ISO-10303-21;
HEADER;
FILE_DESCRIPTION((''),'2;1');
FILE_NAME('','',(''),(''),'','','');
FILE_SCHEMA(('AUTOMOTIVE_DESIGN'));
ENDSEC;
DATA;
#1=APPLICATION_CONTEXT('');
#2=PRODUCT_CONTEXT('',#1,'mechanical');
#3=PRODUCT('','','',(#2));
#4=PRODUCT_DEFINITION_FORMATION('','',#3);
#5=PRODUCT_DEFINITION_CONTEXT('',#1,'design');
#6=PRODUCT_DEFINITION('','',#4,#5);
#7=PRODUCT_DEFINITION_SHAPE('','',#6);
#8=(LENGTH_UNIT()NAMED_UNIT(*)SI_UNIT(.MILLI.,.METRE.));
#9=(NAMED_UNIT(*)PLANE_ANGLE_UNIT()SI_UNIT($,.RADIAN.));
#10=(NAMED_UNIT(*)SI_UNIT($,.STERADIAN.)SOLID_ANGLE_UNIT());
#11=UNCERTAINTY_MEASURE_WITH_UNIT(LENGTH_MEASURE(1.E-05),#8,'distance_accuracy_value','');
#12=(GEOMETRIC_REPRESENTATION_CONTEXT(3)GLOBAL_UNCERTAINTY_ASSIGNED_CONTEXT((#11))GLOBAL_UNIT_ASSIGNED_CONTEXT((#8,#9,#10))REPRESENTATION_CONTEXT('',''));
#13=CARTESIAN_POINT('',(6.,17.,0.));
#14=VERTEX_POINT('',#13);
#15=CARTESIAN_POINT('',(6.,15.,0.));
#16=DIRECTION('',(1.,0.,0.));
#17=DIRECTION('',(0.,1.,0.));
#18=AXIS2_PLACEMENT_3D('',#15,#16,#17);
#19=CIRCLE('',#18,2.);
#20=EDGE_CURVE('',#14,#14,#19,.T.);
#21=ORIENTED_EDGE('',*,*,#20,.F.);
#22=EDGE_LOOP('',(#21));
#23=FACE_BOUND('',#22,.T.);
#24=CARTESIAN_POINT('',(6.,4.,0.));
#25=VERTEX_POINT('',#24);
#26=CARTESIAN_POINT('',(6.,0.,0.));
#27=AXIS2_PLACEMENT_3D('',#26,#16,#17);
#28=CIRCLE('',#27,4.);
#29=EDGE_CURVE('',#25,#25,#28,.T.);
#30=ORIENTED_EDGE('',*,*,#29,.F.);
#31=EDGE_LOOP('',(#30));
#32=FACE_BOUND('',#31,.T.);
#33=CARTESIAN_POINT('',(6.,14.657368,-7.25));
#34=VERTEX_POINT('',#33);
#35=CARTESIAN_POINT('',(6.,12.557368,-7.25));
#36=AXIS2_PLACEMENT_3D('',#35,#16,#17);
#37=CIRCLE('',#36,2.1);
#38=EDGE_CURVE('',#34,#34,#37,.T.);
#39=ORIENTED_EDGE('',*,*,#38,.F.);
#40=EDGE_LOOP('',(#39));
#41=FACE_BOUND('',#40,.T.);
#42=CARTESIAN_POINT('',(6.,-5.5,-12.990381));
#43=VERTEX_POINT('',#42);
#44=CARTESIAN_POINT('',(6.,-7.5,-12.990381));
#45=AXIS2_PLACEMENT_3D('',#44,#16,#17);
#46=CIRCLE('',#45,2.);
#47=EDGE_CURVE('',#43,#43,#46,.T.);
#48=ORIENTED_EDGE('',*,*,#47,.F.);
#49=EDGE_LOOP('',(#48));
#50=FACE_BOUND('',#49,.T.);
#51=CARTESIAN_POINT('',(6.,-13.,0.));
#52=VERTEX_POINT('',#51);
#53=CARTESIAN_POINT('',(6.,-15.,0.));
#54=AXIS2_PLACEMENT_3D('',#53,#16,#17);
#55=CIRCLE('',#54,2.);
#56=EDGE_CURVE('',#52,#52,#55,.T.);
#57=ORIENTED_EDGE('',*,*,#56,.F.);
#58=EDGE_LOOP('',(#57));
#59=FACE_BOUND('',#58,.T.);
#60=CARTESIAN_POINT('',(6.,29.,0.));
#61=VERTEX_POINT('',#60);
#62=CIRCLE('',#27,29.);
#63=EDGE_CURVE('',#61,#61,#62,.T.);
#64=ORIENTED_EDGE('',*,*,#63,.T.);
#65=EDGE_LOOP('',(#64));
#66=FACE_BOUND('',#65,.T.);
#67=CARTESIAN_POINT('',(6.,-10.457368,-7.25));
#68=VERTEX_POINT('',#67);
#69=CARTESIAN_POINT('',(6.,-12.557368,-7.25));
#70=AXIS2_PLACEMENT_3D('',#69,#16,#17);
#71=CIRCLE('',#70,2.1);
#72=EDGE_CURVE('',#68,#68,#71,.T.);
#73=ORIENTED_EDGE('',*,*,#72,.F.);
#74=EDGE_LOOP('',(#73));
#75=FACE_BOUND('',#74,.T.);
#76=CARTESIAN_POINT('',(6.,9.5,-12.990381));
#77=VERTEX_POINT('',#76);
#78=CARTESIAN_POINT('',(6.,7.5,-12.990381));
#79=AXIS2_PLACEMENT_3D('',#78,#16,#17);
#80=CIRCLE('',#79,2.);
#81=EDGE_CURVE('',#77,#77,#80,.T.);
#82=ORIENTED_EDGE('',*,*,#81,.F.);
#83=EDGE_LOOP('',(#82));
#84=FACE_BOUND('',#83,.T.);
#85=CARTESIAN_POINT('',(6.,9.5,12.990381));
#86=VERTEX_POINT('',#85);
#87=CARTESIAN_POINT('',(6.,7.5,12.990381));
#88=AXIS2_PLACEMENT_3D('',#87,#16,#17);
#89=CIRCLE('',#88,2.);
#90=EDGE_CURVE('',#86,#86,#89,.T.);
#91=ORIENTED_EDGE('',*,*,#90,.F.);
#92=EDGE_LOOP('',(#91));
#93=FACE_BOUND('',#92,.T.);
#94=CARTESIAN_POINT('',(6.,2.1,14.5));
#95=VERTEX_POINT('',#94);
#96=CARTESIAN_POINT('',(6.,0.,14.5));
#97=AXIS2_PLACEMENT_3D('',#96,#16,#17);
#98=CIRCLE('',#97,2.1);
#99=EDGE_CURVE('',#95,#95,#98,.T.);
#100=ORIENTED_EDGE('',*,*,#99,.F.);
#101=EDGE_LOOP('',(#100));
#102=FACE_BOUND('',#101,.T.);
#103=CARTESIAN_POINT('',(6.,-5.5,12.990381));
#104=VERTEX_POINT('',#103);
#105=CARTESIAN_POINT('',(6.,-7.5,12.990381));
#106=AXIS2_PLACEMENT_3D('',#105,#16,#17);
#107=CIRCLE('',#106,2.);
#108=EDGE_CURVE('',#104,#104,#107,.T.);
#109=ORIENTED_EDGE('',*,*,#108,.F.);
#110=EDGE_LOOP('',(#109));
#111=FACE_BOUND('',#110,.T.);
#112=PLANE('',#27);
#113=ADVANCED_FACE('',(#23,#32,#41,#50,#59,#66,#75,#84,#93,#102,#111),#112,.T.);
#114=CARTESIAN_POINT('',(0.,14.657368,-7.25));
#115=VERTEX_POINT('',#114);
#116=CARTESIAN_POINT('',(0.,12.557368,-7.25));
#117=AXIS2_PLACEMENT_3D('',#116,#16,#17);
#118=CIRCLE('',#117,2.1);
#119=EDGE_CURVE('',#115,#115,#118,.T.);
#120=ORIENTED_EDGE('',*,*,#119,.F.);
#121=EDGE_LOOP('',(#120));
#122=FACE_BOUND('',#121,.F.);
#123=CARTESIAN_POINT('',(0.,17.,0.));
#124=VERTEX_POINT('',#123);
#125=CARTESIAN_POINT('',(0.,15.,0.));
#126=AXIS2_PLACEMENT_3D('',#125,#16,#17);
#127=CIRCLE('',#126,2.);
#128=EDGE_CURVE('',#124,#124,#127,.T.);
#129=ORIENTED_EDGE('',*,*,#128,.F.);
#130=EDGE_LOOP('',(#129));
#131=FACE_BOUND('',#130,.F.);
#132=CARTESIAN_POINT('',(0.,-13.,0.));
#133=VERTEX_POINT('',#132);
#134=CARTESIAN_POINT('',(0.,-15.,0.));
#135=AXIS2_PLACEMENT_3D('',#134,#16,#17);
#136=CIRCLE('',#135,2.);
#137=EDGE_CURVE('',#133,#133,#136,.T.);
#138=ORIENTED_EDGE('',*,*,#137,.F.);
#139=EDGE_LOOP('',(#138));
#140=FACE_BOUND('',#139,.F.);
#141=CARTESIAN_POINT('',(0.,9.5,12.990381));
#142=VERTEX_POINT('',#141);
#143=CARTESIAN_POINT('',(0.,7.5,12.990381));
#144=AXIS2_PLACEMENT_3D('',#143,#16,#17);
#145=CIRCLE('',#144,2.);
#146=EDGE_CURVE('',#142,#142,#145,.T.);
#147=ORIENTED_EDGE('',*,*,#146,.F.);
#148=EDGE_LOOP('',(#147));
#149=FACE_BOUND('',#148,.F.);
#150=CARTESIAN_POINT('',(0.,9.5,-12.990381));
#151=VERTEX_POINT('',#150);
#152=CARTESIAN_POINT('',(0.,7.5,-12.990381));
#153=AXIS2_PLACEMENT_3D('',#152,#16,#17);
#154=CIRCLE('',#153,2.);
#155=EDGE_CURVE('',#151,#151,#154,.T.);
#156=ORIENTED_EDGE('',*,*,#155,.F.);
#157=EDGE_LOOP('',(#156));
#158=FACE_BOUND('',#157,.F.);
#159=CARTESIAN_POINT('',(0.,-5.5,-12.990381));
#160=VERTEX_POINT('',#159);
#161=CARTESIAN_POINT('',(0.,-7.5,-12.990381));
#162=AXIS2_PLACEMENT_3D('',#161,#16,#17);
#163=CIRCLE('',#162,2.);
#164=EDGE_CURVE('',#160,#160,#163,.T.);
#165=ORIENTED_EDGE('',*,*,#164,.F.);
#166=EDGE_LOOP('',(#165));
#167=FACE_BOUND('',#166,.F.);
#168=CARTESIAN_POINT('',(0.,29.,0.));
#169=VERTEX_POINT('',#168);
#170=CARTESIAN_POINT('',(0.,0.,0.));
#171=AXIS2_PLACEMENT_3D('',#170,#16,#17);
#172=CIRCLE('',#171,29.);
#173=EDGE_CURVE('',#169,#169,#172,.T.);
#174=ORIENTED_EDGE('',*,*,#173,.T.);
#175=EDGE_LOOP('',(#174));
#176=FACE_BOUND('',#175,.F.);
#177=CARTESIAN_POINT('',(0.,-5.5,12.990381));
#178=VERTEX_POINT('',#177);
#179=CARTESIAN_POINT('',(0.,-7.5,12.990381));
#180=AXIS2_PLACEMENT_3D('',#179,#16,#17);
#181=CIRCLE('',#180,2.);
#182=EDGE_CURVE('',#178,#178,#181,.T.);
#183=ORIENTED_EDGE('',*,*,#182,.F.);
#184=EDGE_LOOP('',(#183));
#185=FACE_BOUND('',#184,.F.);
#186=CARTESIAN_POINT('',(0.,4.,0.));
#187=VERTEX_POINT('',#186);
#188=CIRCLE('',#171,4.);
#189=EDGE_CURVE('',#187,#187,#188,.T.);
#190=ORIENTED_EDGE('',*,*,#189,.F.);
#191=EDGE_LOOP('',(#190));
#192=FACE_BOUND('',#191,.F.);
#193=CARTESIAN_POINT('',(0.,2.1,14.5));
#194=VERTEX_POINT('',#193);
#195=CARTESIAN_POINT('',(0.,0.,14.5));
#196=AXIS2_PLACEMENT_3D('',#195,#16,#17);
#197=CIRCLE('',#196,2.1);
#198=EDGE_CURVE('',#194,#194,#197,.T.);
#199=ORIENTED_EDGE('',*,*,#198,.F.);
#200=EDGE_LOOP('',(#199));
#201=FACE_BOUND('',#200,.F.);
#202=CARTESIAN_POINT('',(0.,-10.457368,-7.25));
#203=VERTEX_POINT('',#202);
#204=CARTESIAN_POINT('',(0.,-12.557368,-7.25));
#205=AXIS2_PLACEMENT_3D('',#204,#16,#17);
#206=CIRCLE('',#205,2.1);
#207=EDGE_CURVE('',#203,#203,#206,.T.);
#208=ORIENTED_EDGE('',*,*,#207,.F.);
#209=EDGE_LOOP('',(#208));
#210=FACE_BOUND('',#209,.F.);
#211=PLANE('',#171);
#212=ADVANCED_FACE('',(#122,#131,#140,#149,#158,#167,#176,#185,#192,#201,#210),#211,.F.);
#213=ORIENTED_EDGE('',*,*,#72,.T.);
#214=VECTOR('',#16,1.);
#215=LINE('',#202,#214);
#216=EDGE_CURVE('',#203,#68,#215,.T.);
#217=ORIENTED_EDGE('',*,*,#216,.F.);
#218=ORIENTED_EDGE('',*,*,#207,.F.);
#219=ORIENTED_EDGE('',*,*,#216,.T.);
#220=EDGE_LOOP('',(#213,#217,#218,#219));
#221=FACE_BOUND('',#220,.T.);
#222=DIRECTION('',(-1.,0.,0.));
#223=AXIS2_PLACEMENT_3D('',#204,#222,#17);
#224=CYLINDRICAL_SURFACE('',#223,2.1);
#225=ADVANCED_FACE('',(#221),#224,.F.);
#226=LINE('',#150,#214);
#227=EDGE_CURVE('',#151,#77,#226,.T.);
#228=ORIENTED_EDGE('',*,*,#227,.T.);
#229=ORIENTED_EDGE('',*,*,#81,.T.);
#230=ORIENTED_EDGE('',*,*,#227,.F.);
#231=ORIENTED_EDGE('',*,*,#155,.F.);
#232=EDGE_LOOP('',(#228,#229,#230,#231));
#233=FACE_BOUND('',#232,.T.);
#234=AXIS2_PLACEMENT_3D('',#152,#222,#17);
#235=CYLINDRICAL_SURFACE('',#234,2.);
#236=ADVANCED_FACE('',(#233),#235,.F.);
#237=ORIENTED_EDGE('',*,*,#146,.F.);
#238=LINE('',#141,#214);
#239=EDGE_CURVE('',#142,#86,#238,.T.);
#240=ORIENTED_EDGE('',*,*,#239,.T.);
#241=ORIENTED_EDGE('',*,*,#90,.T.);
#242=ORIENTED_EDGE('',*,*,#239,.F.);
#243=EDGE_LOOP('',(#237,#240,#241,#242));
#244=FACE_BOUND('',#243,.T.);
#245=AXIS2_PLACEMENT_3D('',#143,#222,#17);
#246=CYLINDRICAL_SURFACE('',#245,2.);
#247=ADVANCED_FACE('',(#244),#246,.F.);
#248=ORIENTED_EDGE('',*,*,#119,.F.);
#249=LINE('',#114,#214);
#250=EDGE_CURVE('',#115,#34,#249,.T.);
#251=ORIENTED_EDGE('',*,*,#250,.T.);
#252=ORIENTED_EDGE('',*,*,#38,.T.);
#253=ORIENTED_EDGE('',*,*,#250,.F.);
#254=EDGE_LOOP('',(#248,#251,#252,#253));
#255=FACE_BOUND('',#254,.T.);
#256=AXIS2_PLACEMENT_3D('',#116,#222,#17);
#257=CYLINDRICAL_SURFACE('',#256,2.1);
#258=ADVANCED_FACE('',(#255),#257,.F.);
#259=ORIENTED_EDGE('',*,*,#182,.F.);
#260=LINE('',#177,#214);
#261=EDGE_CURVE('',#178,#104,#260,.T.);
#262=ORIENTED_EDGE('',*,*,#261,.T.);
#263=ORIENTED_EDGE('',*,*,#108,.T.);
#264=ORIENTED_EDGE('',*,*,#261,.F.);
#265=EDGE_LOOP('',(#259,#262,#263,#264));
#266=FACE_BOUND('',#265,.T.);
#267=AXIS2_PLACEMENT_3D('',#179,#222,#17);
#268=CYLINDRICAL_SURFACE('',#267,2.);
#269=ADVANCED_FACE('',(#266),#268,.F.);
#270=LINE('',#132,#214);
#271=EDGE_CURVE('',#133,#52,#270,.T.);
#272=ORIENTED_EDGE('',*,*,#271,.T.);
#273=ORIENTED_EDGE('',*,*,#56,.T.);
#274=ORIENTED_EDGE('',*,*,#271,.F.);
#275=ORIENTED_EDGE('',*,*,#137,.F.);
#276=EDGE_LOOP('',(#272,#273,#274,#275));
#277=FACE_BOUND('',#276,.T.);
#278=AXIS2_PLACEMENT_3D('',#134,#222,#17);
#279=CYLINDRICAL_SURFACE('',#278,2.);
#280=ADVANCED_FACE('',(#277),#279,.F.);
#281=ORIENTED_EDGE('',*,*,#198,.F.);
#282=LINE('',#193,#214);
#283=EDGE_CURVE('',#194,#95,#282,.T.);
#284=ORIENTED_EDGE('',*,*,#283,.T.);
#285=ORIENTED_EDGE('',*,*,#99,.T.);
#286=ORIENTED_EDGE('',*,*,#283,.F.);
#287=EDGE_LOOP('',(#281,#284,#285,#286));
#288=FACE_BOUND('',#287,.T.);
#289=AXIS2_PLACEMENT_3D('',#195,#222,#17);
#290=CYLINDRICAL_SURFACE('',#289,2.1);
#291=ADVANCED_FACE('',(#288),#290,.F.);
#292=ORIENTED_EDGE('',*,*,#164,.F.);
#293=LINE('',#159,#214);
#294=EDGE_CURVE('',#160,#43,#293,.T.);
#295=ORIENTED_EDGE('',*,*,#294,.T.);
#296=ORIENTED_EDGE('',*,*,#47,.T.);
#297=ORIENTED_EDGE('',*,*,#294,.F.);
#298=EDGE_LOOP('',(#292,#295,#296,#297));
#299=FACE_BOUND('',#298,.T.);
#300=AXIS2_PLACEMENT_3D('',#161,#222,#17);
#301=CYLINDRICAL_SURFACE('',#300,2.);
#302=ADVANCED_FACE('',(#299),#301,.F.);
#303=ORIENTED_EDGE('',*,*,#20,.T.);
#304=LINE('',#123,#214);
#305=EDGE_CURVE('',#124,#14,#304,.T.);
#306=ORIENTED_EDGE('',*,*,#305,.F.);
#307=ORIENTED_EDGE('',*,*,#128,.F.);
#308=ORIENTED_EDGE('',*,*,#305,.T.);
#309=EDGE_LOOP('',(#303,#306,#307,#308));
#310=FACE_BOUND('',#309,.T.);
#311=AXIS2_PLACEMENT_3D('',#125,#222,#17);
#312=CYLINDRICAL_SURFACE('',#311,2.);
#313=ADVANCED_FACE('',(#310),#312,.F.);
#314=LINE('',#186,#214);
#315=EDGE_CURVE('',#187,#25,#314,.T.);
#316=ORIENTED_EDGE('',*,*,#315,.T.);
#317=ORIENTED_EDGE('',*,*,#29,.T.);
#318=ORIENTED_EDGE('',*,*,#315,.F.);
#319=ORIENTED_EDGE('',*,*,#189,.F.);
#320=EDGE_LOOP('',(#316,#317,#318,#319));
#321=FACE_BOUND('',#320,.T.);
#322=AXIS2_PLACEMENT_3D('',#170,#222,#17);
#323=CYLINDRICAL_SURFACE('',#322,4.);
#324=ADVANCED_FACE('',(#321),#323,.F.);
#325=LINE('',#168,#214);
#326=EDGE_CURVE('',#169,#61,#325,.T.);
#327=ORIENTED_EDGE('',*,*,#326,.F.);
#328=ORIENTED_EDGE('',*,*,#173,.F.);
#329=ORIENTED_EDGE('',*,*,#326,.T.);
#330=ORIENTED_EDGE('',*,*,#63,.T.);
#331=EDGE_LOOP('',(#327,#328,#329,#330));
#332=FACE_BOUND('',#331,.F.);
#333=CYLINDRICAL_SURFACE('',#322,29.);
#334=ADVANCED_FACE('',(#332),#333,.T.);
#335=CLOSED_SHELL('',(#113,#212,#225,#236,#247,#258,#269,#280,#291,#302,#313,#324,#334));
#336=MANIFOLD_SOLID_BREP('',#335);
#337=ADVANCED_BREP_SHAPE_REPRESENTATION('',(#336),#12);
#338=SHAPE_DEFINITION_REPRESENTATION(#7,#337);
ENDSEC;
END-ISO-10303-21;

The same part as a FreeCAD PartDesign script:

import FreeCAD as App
import Part
import Sketcher
from FreeCAD import Vector
Q = App.Units.Quantity

doc = App.newDocument("Part")
params = doc.addObject("Spreadsheet::Sheet", "Params")
for row, (alias, value) in enumerate([
    ("sketch1_diameter", "58 mm"),
    ("sketch1_diameter2", "4 mm"),
    ("sketch1_diameter3", "8 mm"),
    ("sketch1_diameter4", "4.2 mm"),
    ("pad1_length", "6 mm"),
], start=1):
    params.set(f"A{row}", alias)
    params.set(f"B{row}", "=" + value)
    params.setAlias(f"B{row}", alias)

body = doc.addObject("PartDesign::Body", "Body")

sketch1 = body.newObject("Sketcher::SketchObject", "Sketch")
sketch1.AttachmentSupport = (doc.getObject("YZ_Plane"), [""])
sketch1.MapMode = "FlatFace"
sketch1.addGeometry([
    Part.Circle(Vector(0, 0, 0), Vector(0, 0, 1), 29),
    Part.Circle(Vector(-12.557368, -7.25, 0), Vector(0, 0, 1), 2.1),
    Part.Circle(Vector(-7.5, -12.990381, 0), Vector(0, 0, 1), 2),
    Part.Circle(Vector(-15, 0, 0), Vector(0, 0, 1), 2),
    Part.Circle(Vector(7.5, -12.990381, 0), Vector(0, 0, 1), 2),
    Part.Circle(Vector(12.557368, -7.25, 0), Vector(0, 0, 1), 2.1),
    Part.Circle(Vector(0, 0, 0), Vector(0, 0, 1), 4),
    Part.Circle(Vector(15, 0, 0), Vector(0, 0, 1), 2),
    Part.Circle(Vector(-7.5, 12.990381, 0), Vector(0, 0, 1), 2),
    Part.Circle(Vector(0, 14.5, 0), Vector(0, 0, 1), 2.1),
    Part.Circle(Vector(7.5, 12.990381, 0), Vector(0, 0, 1), 2),
], False)
sketch1.addConstraint([
    Sketcher.Constraint("Coincident", 0, 3, -1, 1),
    Sketcher.Constraint("Coincident", 6, 3, -1, 1),
    Sketcher.Constraint("Equal", 2, 3),
    Sketcher.Constraint("Equal", 3, 4),
    Sketcher.Constraint("Equal", 1, 5),
    Sketcher.Constraint("Equal", 4, 7),
    Sketcher.Constraint("Equal", 7, 8),
    Sketcher.Constraint("Equal", 5, 9),
    Sketcher.Constraint("Equal", 8, 10),
    Sketcher.Constraint("Symmetric", 3, 3, 7, 3, -1, 1),
    Sketcher.Constraint("Symmetric", 4, 3, 8, 3, -1, 1),
    Sketcher.Constraint("Symmetric", 2, 3, 10, 3, -1, 1),
    Sketcher.Constraint("Symmetric", 2, 3, 4, 3, -2),
    Sketcher.Constraint("Symmetric", 1, 3, 5, 3, -2),
    Sketcher.Constraint("PointOnObject", 3, 3, -1),
    Sketcher.Constraint("PointOnObject", 9, 3, -2),
    Sketcher.Constraint("Diameter", 0, Q("58 mm")),
    Sketcher.Constraint("Diameter", 2, Q("4 mm")),
    Sketcher.Constraint("Diameter", 6, Q("8 mm")),
    Sketcher.Constraint("Diameter", 1, Q("4.2 mm")),
    Sketcher.Constraint("DistanceX", 3, 3, -1, 1, Q("15 mm")),
    Sketcher.Constraint("DistanceX", 2, 3, 4, 3, Q("15 mm")),
    Sketcher.Constraint("DistanceY", -1, 1, 9, 3, Q("14.5 mm")),
    Sketcher.Constraint("DistanceY", 1, 3, -1, 1, Q("7.25 mm")),
    Sketcher.Constraint("DistanceY", 2, 3, -1, 1, Q("12.990381 mm")),
    Sketcher.Constraint("DistanceX", 1, 3, 2, 3, Q("5.057368 mm")),
])
sketch1.setExpression("Constraints[16]", "Params.sketch1_diameter")
sketch1.setExpression("Constraints[17]", "Params.sketch1_diameter2")
sketch1.setExpression("Constraints[18]", "Params.sketch1_diameter3")
sketch1.setExpression("Constraints[19]", "Params.sketch1_diameter4")
pad1 = body.newObject("PartDesign::Pad", "Pad")
pad1.Profile = sketch1
pad1.setExpression("Length", "Params.pad1_length")

doc.recompute()
